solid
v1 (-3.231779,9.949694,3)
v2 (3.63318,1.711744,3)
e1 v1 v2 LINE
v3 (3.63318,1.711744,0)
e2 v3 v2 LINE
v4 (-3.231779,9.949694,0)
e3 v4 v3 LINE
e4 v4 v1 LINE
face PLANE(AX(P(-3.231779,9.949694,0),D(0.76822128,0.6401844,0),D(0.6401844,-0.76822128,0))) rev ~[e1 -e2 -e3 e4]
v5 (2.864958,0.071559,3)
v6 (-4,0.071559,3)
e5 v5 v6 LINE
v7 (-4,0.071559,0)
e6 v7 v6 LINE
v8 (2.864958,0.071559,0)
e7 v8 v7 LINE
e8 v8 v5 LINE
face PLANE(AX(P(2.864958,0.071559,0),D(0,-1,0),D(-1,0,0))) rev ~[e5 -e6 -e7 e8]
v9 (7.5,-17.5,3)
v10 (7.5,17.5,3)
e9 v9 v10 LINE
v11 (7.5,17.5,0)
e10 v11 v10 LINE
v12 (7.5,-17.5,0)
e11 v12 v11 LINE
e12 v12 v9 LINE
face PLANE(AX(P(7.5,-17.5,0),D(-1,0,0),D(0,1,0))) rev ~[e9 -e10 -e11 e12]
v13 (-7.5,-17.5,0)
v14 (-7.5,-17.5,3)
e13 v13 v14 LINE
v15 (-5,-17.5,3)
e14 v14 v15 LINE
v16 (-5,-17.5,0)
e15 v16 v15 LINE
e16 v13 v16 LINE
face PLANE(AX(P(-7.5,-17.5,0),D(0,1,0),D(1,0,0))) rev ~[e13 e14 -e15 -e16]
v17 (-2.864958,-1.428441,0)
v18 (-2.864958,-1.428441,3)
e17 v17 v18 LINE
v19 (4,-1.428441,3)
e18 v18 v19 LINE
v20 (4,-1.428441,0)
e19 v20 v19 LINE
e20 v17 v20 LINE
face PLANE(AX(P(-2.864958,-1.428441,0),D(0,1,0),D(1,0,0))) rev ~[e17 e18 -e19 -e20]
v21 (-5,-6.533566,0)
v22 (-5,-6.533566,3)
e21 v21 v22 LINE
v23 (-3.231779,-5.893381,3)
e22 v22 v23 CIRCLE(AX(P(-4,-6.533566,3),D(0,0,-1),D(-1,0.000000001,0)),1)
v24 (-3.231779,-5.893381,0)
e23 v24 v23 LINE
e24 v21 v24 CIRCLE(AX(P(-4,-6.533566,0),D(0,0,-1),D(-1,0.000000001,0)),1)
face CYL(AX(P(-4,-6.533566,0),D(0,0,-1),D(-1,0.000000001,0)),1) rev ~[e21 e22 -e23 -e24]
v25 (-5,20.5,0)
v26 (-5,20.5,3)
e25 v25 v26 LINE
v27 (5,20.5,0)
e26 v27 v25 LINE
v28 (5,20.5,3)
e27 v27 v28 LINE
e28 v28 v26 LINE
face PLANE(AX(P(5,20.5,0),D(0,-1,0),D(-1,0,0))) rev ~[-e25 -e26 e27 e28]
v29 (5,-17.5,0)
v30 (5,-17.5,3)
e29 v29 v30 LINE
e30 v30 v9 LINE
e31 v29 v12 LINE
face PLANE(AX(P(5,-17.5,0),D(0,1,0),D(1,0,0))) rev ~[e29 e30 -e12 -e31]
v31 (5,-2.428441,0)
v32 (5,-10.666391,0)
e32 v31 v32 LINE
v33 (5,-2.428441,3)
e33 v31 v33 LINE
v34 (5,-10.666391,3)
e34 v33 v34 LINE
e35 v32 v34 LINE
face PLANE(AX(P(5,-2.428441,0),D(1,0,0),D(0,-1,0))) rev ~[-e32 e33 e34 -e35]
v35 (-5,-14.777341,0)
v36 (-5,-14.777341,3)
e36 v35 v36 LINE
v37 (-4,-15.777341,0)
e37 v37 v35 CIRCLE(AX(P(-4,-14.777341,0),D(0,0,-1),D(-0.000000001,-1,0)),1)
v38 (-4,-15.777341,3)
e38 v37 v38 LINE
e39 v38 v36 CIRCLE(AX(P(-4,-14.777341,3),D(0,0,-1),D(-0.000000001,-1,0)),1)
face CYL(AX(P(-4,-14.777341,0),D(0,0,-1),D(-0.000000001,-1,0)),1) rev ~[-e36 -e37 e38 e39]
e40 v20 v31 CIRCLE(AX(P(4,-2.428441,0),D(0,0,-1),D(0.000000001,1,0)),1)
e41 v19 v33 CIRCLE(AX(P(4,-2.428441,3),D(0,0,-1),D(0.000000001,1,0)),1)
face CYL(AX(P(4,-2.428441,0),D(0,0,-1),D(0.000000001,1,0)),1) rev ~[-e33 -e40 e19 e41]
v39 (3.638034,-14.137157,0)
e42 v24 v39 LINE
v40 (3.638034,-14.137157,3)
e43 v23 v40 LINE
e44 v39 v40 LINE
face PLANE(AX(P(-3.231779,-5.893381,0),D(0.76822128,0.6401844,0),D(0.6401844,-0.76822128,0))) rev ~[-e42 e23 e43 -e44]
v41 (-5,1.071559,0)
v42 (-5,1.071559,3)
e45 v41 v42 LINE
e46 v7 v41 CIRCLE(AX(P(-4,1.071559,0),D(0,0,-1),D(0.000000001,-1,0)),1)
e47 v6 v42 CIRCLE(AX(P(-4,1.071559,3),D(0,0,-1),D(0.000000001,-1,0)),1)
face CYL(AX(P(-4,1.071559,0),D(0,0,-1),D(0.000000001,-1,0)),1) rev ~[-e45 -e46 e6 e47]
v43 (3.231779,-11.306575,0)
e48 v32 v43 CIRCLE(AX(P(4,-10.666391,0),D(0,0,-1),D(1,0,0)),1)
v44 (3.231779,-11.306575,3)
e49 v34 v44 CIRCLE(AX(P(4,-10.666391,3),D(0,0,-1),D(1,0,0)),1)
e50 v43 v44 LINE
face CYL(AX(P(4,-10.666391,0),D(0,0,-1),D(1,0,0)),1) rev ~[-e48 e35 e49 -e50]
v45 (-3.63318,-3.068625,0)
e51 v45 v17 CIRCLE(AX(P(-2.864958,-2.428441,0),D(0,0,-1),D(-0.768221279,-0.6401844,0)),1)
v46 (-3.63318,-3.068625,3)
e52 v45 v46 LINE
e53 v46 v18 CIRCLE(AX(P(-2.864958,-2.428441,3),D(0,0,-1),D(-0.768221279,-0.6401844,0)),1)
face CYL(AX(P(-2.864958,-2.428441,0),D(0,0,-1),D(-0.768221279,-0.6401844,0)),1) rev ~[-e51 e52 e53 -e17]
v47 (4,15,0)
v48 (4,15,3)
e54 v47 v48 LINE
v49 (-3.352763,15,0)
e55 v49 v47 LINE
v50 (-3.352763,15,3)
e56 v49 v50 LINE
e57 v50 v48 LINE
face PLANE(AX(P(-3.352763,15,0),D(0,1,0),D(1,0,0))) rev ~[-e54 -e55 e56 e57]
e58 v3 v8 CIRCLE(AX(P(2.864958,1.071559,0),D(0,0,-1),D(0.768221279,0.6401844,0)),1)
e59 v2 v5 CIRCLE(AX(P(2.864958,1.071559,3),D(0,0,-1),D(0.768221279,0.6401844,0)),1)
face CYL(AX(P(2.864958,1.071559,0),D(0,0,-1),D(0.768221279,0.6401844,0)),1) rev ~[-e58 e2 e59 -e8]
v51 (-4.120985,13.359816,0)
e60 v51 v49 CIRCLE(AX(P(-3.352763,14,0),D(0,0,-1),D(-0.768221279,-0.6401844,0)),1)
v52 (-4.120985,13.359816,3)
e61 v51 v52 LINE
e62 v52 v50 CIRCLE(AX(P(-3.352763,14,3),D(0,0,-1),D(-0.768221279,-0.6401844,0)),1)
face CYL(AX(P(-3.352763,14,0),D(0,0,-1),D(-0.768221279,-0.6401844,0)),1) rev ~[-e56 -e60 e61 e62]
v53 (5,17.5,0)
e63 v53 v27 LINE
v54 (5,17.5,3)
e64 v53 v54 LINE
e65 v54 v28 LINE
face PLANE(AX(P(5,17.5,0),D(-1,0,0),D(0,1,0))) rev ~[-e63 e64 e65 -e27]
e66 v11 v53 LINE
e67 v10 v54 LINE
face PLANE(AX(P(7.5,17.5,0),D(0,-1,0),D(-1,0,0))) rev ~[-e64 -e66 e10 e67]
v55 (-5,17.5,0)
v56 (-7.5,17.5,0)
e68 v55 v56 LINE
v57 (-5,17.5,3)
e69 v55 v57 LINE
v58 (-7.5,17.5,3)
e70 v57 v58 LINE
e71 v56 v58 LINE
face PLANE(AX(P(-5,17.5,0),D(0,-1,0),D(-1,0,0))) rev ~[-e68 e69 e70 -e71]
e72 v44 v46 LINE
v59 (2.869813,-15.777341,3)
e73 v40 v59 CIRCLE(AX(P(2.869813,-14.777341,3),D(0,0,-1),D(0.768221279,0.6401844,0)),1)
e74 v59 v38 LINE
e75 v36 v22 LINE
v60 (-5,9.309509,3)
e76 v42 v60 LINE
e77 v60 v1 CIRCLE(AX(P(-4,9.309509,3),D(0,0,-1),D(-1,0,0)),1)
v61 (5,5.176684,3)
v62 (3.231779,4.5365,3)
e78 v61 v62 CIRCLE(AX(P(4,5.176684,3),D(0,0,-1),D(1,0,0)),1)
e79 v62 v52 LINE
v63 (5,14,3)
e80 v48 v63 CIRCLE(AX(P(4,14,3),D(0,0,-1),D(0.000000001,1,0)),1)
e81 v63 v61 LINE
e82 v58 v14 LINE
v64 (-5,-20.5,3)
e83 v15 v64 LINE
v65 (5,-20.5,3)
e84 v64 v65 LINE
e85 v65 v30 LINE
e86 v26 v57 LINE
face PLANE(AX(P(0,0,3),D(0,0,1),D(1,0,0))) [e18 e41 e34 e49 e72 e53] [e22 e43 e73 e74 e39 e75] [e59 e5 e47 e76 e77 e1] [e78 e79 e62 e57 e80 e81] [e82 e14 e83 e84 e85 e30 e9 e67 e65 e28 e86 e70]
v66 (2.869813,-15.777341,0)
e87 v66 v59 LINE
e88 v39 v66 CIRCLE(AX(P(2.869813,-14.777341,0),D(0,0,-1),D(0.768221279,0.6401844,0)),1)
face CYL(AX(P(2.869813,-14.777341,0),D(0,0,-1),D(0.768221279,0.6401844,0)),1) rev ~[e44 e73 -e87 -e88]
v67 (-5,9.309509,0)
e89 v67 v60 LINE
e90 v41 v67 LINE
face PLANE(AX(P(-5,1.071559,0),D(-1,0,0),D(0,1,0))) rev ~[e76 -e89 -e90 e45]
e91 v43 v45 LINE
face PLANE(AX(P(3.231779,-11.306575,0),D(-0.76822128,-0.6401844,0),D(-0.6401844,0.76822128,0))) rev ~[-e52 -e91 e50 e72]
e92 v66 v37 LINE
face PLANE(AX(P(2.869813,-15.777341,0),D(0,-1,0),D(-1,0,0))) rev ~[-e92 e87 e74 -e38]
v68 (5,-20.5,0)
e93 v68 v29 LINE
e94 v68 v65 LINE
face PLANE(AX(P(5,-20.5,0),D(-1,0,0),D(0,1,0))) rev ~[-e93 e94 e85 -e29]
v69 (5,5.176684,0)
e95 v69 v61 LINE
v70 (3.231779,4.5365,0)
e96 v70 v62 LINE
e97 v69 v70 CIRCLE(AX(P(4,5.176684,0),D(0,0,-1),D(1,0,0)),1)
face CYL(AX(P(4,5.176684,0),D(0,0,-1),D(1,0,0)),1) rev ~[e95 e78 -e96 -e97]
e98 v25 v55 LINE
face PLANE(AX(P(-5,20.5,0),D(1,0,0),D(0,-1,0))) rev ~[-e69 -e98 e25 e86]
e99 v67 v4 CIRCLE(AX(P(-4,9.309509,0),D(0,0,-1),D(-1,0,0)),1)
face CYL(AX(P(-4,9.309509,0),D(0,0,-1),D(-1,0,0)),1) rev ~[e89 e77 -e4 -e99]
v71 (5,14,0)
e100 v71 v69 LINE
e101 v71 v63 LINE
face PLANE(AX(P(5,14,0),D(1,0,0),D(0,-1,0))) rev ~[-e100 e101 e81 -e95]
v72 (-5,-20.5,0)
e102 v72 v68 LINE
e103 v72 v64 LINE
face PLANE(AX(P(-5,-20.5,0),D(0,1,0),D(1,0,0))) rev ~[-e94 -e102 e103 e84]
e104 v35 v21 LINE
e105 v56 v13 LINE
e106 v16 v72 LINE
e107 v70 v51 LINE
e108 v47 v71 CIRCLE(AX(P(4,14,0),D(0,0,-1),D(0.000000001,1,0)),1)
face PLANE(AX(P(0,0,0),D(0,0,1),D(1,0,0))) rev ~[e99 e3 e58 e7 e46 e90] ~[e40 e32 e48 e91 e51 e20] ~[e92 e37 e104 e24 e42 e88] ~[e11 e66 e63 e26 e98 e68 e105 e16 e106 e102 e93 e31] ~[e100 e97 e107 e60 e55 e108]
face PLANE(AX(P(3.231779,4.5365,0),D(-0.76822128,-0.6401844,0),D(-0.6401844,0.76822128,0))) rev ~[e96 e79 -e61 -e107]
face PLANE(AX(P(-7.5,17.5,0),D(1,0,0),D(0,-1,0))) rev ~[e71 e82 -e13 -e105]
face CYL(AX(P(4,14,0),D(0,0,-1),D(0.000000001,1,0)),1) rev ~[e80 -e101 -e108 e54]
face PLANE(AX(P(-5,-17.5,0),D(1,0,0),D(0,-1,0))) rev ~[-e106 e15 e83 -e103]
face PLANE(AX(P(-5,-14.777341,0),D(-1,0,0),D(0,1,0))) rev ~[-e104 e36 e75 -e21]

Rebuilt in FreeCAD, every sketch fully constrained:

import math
import FreeCAD as App
import Part
import Sketcher

doc = App.newDocument("Part")
body = doc.addObject("PartDesign::Body", "Body")

# Sketch on XY plane
sketch1 = body.newObject("Sketcher::SketchObject", "Sketch")
sketch1.AttachmentSupport = (doc.getObject("XY_Plane"), [""])
sketch1.MapMode = "FlatFace"
sketch1.addGeometry(Part.LineSegment(App.Vector(-5, -20.5, 0), App.Vector(5, -20.5, 0)), False)
sketch1.addGeometry(Part.LineSegment(App.Vector(5, -20.5, 0), App.Vector(5, -17.5, 0)), False)
sketch1.addGeometry(Part.LineSegment(App.Vector(5, -17.5, 0), App.Vector(7.5, -17.5, 0)), False)
sketch1.addGeometry(Part.LineSegment(App.Vector(7.5, -17.5, 0), App.Vector(7.5, 17.5, 0)), False)
sketch1.addGeometry(Part.LineSegment(App.Vector(7.5, 17.5, 0), App.Vector(5, 17.5, 0)), False)
sketch1.addGeometry(Part.LineSegment(App.Vector(5, 17.5, 0), App.Vector(5, 20.5, 0)), False)
sketch1.addGeometry(Part.LineSegment(App.Vector(5, 20.5, 0), App.Vector(-5, 20.5, 0)), False)
sketch1.addGeometry(Part.LineSegment(App.Vector(-5, 20.5, 0), App.Vector(-5, 17.5, 0)), False)
sketch1.addGeometry(Part.LineSegment(App.Vector(-5, 17.5, 0), App.Vector(-7.5, 17.5, 0)), False)
sketch1.addGeometry(Part.LineSegment(App.Vector(-7.5, 17.5, 0), App.Vector(-7.5, -17.5, 0)), False)
sketch1.addGeometry(Part.LineSegment(App.Vector(-7.5, -17.5, 0), App.Vector(-5, -17.5, 0)), False)
sketch1.addGeometry(Part.LineSegment(App.Vector(-5, -17.5, 0), App.Vector(-5, -20.5, 0)), False)
sketch1.addGeometry(Part.LineSegment(App.Vector(-5, -14.8, 0), App.Vector(-5, -6.5, 0)), False)
sketch1.addGeometry(Part.ArcOfCircle(Part.Circle(App.Vector(-4, -6.5, 0), App.Vector(0, 0, 1), 1), math.radians(40), math.radians(180)), False)
sketch1.addGeometry(Part.LineSegment(App.Vector(-3.2, -5.9, 0), App.Vector(3.6, -14.1, 0)), False)
sketch1.addGeometry(Part.ArcOfCircle(Part.Circle(App.Vector(2.9, -14.8, 0), App.Vector(0, 0, 1), 1), math.radians(-90), math.radians(40)), False)
sketch1.addGeometry(Part.LineSegment(App.Vector(2.9, -15.8, 0), App.Vector(-4, -15.8, 0)), False)
sketch1.addGeometry(Part.ArcOfCircle(Part.Circle(App.Vector(-4, -14.8, 0), App.Vector(0, 0, 1), 1), math.radians(-180), math.radians(-90)), False)
sketch1.addGeometry(Part.LineSegment(App.Vector(3.2, -11.3, 0), App.Vector(-3.6, -3.1, 0)), False)
sketch1.addGeometry(Part.ArcOfCircle(Part.Circle(App.Vector(-2.9, -2.4, 0), App.Vector(0, 0, 1), 1), math.radians(90), math.radians(220)), False)
sketch1.addGeometry(Part.LineSegment(App.Vector(-2.9, -1.4, 0), App.Vector(4, -1.4, 0)), False)
sketch1.addGeometry(Part.ArcOfCircle(Part.Circle(App.Vector(4, -2.4, 0), App.Vector(0, 0, 1), 1), math.radians(0), math.radians(90)), False)
sketch1.addGeometry(Part.LineSegment(App.Vector(5, -2.4, 0), App.Vector(5, -10.7, 0)), False)
sketch1.addGeometry(Part.ArcOfCircle(Part.Circle(App.Vector(4, -10.7, 0), App.Vector(0, 0, 1), 1), math.radians(-140), math.radians(0)), False)
sketch1.addGeometry(Part.LineSegment(App.Vector(-5, 1.1, 0), App.Vector(-5, 9.3, 0)), False)
sketch1.addGeometry(Part.ArcOfCircle(Part.Circle(App.Vector(-4, 9.3, 0), App.Vector(0, 0, 1), 1), math.radians(40), math.radians(180)), False)
sketch1.addGeometry(Part.LineSegment(App.Vector(-3.2, 9.9, 0), App.Vector(3.6, 1.7, 0)), False)
sketch1.addGeometry(Part.ArcOfCircle(Part.Circle(App.Vector(2.9, 1.1, 0), App.Vector(0, 0, 1), 1), math.radians(-90), math.radians(40)), False)
sketch1.addGeometry(Part.LineSegment(App.Vector(2.9, 0.1, 0), App.Vector(-4, 0.1, 0)), False)
sketch1.addGeometry(Part.ArcOfCircle(Part.Circle(App.Vector(-4, 1.1, 0), App.Vector(0, 0, 1), 1), math.radians(180), math.radians(270)), False)
sketch1.addGeometry(Part.ArcOfCircle(Part.Circle(App.Vector(4, 5.2, 0), App.Vector(0, 0, 1), 1), math.radians(-140), math.radians(0)), False)
sketch1.addGeometry(Part.LineSegment(App.Vector(3.2, 4.5, 0), App.Vector(-4.1, 13.4, 0)), False)
sketch1.addGeometry(Part.ArcOfCircle(Part.Circle(App.Vector(-3.4, 14, 0), App.Vector(0, 0, 1), 1), math.radians(90), math.radians(220)), False)
sketch1.addGeometry(Part.LineSegment(App.Vector(-3.4, 15, 0), App.Vector(4, 15, 0)), False)
sketch1.addGeometry(Part.ArcOfCircle(Part.Circle(App.Vector(4, 14, 0), App.Vector(0, 0, 1), 1), math.radians(0), math.radians(90)), False)
sketch1.addGeometry(Part.LineSegment(App.Vector(5, 14, 0), App.Vector(5, 5.2, 0)), False)
sketch1.addConstraint(Sketcher.Constraint("Coincident", 0, 2, 1, 1))
sketch1.addConstraint(Sketcher.Constraint("Coincident", 1, 2, 2, 1))
sketch1.addConstraint(Sketcher.Constraint("Coincident", 2, 2, 3, 1))
sketch1.addConstraint(Sketcher.Constraint("Coincident", 3, 2, 4, 1))
sketch1.addConstraint(Sketcher.Constraint("Coincident", 4, 2, 5, 1))
sketch1.addConstraint(Sketcher.Constraint("Coincident", 5, 2, 6, 1))
sketch1.addConstraint(Sketcher.Constraint("Coincident", 6, 2, 7, 1))
sketch1.addConstraint(Sketcher.Constraint("Coincident", 7, 2, 8, 1))
sketch1.addConstraint(Sketcher.Constraint("Coincident", 8, 2, 9, 1))
sketch1.addConstraint(Sketcher.Constraint("Coincident", 9, 2, 10, 1))
sketch1.addConstraint(Sketcher.Constraint("Coincident", 10, 2, 11, 1))
sketch1.addConstraint(Sketcher.Constraint("Coincident", 11, 2, 0, 1))
sketch1.addConstraint(Sketcher.Constraint("Tangent", 12, 2, 13, 2))
sketch1.addConstraint(Sketcher.Constraint("Tangent", 13, 1, 14, 1))
sketch1.addConstraint(Sketcher.Constraint("Tangent", 14, 2, 15, 2))
sketch1.addConstraint(Sketcher.Constraint("Tangent", 15, 1, 16, 1))
sketch1.addConstraint(Sketcher.Constraint("Tangent", 16, 2, 17, 2))
sketch1.addConstraint(Sketcher.Constraint("Tangent", 17, 1, 12, 1))
sketch1.addConstraint(Sketcher.Constraint("Tangent", 18, 2, 19, 2))
sketch1.addConstraint(Sketcher.Constraint("Tangent", 19, 1, 20, 1))
sketch1.addConstraint(Sketcher.Constraint("Tangent", 20, 2, 21, 2))
sketch1.addConstraint(Sketcher.Constraint("Tangent", 21, 1, 22, 1))
sketch1.addConstraint(Sketcher.Constraint("Tangent", 22, 2, 23, 2))
sketch1.addConstraint(Sketcher.Constraint("Tangent", 23, 1, 18, 1))
sketch1.addConstraint(Sketcher.Constraint("Tangent", 24, 2, 25, 2))
sketch1.addConstraint(Sketcher.Constraint("Tangent", 25, 1, 26, 1))
sketch1.addConstraint(Sketcher.Constraint("Tangent", 26, 2, 27, 2))
sketch1.addConstraint(Sketcher.Constraint("Tangent", 27, 1, 28, 1))
sketch1.addConstraint(Sketcher.Constraint("Tangent", 28, 2, 29, 2))
sketch1.addConstraint(Sketcher.Constraint("Tangent", 29, 1, 24, 1))
sketch1.addConstraint(Sketcher.Constraint("Tangent", 30, 1, 31, 1))
sketch1.addConstraint(Sketcher.Constraint("Tangent", 31, 2, 32, 2))
sketch1.addConstraint(Sketcher.Constraint("Tangent", 32, 1, 33, 1))
sketch1.addConstraint(Sketcher.Constraint("Tangent", 33, 2, 34, 2))
sketch1.addConstraint(Sketcher.Constraint("Tangent", 34, 1, 35, 1))
sketch1.addConstraint(Sketcher.Constraint("Tangent", 35, 2, 30, 2))
sketch1.addConstraint(Sketcher.Constraint("Horizontal", 0))
sketch1.addConstraint(Sketcher.Constraint("Vertical", 1))
sketch1.addConstraint(Sketcher.Constraint("Horizontal", 2))
sketch1.addConstraint(Sketcher.Constraint("Vertical", 3))
sketch1.addConstraint(Sketcher.Constraint("Horizontal", 4))
sketch1.addConstraint(Sketcher.Constraint("Vertical", 5))
sketch1.addConstraint(Sketcher.Constraint("Horizontal", 6))
sketch1.addConstraint(Sketcher.Constraint("Vertical", 7))
sketch1.addConstraint(Sketcher.Constraint("Horizontal", 8))
sketch1.addConstraint(Sketcher.Constraint("Vertical", 9))
sketch1.addConstraint(Sketcher.Constraint("Horizontal", 10))
sketch1.addConstraint(Sketcher.Constraint("Vertical", 11))
sketch1.addConstraint(Sketcher.Constraint("Vertical", 12))
sketch1.addConstraint(Sketcher.Constraint("Horizontal", 16))
sketch1.addConstraint(Sketcher.Constraint("Horizontal", 20))
sketch1.addConstraint(Sketcher.Constraint("Vertical", 22))
sketch1.addConstraint(Sketcher.Constraint("Vertical", 24))
sketch1.addConstraint(Sketcher.Constraint("Horizontal", 28))
sketch1.addConstraint(Sketcher.Constraint("Horizontal", 33))
sketch1.addConstraint(Sketcher.Constraint("Vertical", 35))
sketch1.addConstraint(Sketcher.Constraint("Equal", 13, 15))
sketch1.addConstraint(Sketcher.Constraint("Equal", 15, 17))
sketch1.addConstraint(Sketcher.Constraint("Equal", 17, 19))
sketch1.addConstraint(Sketcher.Constraint("Equal", 19, 21))
sketch1.addConstraint(Sketcher.Constraint("Equal", 21, 23))
sketch1.addConstraint(Sketcher.Constraint("Equal", 23, 25))
sketch1.addConstraint(Sketcher.Constraint("Equal", 25, 27))
sketch1.addConstraint(Sketcher.Constraint("Equal", 27, 29))
sketch1.addConstraint(Sketcher.Constraint("Equal", 29, 30))
sketch1.addConstraint(Sketcher.Constraint("Equal", 30, 32))
sketch1.addConstraint(Sketcher.Constraint("Equal", 32, 34))
sketch1.addConstraint(Sketcher.Constraint("Symmetric", 0, 2, 6, 2, -1, 1))
sketch1.addConstraint(Sketcher.Constraint("Symmetric", 2, 2, 8, 2, -1, 1))
sketch1.addConstraint(Sketcher.Constraint("Symmetric", 4, 2, 10, 2, -1, 1))
sketch1.addConstraint(Sketcher.Constraint("Symmetric", 4, 2, 7, 2, -2))
sketch1.addConstraint(Sketcher.Constraint("Parallel", 14, 18))
sketch1.addConstraint(Sketcher.Constraint("Parallel", 18, 26))
sketch1.addConstraint(Sketcher.Constraint("Parallel", 26, 31))
sketch1.addConstraint(Sketcher.Constraint("Vertical", 17, 3, 25, 3))
sketch1.addConstraint(Sketcher.Constraint("Vertical", 23, 3, 30, 3))
sketch1.addConstraint(Sketcher.Constraint("Vertical", 11, 2, 12, 2))
sketch1.addConstraint(Sketcher.Constraint("Vertical", 5, 2, 21, 1))
sketch1.addConstraint(Sketcher.Constraint("Equal", 20, 28))
sketch1.addConstraint(Sketcher.Constraint("Radius", 13, 1.0))
sketch1.addConstraint(Sketcher.Constraint("DistanceX", 0, 1, 0, 2, 10.0))
sketch1.addConstraint(Sketcher.Constraint("DistanceY", 1, 1, 1, 2, 3.0))
sketch1.addConstraint(Sketcher.Constraint("DistanceY", 3, 1, 3, 2, 35.0))
sketch1.addConstraint(Sketcher.Constraint("DistanceX", 2, 1, 2, 2, 2.5))
sketch1.addConstraint(Sketcher.Constraint("DistanceY", -1, 1, 32, 3, 14.0))
sketch1.addConstraint(Sketcher.Constraint("DistanceY", 21, 3, 27, 3, 3.5))
sketch1.addConstraint(Sketcher.Constraint("DistanceX", 20, 1, 20, 2, 6.864958))
sketch1.addConstraint(Sketcher.Constraint("DistanceY", 22, 2, 22, 1, 8.23795))
sketch1.addConstraint(Sketcher.Constraint("DistanceY", -1, 1, 30, 1, 4.5365))
sketch1.addConstraint(Sketcher.Constraint("DistanceY", 17, 3, 19, 3, 12.348901))
sketch1.addConstraint(Sketcher.Constraint("Distance", 14, 10.730991))
sketch1.addConstraint(Sketcher.Constraint("DistanceY", 15, 3, -1, 1, 14.777341))
pad1 = body.newObject("PartDesign::Pad", "Pad")
pad1.Profile = sketch1
pad1.Length = 3

doc.recompute()
